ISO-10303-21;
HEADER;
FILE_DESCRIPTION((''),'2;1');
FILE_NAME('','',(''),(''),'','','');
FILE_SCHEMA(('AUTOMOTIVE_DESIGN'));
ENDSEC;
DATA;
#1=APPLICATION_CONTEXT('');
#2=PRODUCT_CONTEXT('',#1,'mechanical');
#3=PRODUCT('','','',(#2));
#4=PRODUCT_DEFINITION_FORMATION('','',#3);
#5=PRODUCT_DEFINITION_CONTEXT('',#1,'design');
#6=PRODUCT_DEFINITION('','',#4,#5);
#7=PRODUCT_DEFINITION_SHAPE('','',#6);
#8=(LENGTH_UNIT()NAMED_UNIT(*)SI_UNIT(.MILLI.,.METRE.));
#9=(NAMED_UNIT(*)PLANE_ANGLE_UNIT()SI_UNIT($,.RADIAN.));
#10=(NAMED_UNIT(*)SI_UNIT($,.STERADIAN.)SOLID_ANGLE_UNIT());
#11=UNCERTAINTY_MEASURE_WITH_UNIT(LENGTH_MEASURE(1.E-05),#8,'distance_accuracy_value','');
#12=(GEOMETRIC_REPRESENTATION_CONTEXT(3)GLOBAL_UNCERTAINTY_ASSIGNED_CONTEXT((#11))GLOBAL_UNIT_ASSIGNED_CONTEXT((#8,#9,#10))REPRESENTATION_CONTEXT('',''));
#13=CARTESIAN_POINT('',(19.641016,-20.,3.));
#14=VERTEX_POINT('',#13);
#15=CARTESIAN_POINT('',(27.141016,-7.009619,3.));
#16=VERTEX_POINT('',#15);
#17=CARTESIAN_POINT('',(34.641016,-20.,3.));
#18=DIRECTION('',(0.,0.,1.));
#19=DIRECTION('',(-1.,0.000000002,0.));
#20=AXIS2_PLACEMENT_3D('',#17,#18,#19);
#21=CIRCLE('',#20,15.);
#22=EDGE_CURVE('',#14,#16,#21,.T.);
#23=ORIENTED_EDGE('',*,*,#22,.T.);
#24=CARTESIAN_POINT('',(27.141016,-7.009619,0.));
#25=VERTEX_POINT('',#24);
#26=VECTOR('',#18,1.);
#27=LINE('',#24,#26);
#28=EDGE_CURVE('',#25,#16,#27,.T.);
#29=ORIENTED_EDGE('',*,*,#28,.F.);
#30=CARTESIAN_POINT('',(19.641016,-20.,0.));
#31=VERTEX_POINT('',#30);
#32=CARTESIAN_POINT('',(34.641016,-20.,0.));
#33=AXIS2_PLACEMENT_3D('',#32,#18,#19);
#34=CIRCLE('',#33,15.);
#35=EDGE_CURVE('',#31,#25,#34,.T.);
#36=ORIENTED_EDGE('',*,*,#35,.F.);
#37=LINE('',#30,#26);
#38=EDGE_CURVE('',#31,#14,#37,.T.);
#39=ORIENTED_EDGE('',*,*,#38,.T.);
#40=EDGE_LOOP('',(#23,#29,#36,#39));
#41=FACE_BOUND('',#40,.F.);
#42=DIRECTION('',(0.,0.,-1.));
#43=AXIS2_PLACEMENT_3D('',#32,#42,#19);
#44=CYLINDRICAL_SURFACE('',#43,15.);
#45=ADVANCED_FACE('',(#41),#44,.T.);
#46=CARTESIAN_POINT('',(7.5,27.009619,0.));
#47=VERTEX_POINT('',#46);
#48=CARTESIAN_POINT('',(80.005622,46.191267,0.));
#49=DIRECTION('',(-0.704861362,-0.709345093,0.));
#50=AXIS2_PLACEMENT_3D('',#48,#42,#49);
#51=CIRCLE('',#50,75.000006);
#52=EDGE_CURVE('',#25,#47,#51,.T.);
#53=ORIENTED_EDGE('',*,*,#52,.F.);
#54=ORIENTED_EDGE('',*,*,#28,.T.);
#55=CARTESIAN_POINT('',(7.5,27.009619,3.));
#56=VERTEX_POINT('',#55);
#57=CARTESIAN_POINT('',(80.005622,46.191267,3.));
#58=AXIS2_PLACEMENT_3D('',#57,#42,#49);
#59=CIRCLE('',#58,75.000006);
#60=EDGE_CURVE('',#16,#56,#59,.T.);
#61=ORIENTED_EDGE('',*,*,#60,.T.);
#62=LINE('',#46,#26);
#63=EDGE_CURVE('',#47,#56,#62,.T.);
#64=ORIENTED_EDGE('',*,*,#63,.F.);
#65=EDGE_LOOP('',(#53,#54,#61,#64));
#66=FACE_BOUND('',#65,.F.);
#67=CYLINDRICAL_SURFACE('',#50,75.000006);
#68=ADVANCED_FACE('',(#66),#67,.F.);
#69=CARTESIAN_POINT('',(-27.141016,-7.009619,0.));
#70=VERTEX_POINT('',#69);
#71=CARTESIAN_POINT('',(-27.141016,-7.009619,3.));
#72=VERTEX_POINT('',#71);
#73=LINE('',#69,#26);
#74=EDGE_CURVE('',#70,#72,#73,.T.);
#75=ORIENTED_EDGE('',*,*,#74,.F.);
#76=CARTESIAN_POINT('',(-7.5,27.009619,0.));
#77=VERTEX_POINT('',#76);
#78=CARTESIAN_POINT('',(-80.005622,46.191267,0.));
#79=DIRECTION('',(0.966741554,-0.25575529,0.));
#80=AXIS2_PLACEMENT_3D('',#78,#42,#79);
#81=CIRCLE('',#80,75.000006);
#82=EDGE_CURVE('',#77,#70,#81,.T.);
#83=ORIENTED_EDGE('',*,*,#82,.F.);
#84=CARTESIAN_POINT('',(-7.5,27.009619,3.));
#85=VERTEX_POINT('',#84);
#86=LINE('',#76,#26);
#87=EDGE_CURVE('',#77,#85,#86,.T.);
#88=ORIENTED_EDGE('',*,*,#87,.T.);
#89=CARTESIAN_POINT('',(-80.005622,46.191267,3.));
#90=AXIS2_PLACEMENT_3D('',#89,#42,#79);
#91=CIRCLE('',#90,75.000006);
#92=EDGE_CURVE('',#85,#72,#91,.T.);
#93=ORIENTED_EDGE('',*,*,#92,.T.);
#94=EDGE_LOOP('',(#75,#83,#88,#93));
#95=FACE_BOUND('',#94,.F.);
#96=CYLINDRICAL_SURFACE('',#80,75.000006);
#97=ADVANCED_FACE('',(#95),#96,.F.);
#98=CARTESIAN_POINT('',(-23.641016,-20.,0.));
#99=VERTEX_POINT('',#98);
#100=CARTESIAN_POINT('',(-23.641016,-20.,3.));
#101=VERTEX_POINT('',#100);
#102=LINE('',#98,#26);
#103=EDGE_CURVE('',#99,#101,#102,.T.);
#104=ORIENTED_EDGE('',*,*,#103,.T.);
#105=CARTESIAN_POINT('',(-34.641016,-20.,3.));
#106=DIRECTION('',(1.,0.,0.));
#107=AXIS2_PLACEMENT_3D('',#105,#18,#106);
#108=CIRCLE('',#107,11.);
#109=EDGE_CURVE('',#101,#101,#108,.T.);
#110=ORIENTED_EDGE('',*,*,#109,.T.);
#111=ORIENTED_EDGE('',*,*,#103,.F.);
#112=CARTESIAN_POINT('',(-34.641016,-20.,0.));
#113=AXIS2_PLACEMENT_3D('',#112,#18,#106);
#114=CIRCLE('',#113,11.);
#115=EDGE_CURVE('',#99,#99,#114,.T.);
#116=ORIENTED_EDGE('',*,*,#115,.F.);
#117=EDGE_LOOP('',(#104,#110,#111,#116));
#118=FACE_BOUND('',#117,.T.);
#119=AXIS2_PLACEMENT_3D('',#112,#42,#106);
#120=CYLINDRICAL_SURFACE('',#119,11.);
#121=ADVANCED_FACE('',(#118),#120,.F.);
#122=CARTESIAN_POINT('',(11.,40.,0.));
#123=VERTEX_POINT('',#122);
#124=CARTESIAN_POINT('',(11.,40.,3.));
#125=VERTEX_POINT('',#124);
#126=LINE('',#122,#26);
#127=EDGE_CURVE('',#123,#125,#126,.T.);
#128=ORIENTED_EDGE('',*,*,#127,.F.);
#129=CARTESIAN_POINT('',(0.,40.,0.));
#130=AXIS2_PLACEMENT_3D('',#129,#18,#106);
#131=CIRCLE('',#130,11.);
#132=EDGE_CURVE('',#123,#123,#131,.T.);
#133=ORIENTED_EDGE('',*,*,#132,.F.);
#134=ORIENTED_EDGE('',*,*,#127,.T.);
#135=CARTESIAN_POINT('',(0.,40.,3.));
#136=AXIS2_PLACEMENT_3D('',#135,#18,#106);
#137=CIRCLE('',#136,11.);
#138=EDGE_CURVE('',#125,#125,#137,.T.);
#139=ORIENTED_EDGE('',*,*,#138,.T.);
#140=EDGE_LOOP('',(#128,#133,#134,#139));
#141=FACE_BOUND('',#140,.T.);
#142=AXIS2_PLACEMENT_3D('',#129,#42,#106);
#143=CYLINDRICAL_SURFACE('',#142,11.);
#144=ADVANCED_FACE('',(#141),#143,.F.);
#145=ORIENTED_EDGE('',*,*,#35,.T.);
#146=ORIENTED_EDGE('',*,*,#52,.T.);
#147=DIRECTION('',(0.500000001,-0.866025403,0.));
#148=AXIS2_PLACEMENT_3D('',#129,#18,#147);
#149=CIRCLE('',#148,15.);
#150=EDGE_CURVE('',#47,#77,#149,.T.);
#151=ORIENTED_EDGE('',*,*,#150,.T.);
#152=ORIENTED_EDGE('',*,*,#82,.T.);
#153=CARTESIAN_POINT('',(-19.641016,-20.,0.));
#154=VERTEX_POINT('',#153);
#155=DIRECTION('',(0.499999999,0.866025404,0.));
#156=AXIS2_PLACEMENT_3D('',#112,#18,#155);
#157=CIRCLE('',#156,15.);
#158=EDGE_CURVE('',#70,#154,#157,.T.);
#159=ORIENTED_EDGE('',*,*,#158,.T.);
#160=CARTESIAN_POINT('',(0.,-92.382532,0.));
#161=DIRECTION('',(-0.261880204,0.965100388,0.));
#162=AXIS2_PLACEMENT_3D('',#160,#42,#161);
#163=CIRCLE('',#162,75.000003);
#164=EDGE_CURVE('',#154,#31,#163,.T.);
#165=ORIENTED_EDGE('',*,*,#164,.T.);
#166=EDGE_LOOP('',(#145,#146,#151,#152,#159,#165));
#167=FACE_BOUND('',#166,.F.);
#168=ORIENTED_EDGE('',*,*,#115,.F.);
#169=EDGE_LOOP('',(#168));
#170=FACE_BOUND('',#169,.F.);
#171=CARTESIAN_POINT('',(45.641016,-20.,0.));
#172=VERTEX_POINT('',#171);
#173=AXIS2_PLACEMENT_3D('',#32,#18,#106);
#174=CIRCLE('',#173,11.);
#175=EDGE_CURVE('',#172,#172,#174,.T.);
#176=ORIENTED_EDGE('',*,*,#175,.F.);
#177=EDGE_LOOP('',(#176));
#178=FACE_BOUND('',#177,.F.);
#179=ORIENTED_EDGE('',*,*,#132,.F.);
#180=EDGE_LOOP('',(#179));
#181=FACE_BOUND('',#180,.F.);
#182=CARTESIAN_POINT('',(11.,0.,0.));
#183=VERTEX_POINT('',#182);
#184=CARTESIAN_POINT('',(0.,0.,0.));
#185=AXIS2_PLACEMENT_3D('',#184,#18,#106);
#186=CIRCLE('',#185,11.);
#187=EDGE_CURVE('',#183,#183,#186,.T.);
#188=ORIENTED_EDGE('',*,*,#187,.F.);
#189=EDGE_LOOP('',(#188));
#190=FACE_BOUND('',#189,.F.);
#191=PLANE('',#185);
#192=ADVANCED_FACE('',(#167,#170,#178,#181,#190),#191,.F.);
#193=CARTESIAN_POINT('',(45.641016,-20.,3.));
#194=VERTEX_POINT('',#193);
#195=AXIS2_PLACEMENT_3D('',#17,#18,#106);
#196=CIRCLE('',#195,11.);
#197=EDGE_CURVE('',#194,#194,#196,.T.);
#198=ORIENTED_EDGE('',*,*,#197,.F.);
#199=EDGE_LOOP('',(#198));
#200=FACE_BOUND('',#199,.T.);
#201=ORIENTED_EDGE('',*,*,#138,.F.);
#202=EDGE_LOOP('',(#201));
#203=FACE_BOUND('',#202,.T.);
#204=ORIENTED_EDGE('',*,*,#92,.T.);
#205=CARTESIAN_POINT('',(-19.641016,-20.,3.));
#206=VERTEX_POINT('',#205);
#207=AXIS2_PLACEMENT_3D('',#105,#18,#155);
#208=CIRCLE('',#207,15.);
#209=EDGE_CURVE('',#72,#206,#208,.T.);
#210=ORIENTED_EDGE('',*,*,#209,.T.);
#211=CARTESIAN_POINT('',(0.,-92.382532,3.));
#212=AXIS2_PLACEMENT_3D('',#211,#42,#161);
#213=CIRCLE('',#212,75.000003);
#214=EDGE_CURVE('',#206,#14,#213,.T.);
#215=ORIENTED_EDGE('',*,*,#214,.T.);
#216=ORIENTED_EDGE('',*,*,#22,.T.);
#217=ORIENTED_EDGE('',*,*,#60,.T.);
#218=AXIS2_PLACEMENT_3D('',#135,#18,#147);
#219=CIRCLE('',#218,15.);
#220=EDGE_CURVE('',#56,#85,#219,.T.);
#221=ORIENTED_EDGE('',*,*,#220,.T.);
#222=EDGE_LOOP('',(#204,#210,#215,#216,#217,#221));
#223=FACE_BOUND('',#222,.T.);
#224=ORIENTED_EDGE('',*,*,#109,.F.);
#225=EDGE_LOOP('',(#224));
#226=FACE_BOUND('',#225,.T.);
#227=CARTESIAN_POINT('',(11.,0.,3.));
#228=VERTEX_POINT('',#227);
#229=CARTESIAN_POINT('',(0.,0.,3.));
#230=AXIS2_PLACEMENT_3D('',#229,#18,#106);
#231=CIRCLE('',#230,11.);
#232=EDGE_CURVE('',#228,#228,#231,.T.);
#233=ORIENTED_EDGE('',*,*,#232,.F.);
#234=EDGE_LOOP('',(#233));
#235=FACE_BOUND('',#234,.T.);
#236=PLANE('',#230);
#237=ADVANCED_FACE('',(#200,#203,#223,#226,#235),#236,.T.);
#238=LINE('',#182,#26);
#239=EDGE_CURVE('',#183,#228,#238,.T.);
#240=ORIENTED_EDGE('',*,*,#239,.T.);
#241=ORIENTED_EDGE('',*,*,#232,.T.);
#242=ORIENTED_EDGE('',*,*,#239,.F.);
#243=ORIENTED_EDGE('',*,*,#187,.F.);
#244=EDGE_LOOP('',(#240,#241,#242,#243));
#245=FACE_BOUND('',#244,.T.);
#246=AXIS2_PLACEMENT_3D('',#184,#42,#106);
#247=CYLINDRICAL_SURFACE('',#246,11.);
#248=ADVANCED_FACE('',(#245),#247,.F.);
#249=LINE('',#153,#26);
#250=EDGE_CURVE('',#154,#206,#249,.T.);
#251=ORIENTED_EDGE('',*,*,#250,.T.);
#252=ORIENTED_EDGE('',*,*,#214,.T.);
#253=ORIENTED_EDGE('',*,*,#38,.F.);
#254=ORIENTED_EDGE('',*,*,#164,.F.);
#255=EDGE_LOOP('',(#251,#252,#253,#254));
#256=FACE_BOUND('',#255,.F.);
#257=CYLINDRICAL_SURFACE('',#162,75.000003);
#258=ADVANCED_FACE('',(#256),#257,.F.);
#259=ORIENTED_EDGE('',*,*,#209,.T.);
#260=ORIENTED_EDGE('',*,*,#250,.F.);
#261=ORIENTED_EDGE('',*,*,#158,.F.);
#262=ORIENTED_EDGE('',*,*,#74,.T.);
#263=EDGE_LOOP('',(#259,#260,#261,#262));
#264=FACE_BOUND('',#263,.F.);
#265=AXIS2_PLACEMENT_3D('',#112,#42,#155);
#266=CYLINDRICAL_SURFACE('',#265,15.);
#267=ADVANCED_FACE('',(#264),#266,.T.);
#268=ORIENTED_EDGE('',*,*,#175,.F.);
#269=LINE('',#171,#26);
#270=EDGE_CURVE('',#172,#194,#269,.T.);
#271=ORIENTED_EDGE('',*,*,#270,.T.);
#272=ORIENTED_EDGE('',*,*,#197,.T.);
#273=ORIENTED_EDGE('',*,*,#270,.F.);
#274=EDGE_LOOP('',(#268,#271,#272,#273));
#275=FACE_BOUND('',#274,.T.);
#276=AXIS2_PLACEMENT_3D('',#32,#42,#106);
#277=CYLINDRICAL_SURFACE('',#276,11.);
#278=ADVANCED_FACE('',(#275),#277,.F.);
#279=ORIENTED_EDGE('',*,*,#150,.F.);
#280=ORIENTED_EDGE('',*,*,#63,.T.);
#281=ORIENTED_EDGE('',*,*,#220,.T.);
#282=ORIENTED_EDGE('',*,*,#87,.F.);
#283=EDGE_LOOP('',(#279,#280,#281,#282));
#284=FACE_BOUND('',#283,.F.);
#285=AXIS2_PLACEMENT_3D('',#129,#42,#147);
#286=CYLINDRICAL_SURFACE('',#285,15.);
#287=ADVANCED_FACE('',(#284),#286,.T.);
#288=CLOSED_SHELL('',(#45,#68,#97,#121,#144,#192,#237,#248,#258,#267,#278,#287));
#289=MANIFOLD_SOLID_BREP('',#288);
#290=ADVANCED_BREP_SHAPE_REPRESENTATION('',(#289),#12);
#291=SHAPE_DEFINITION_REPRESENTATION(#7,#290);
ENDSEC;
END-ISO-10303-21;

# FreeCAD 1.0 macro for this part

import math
import FreeCAD as App
import Part
import Sketcher
from FreeCAD import Vector
Q = App.Units.Quantity

doc = App.newDocument("Part")
body = doc.addObject("PartDesign::Body", "Body")

sketch1 = body.newObject("Sketcher::SketchObject", "Sketch")
sketch1.AttachmentSupport = (doc.getObject("XY_Plane"), [""])
sketch1.MapMode = "FlatFace"
sketch1.addGeometry(Part.ArcOfCircle(Part.Circle(Vector(80, 46, 0), Vector(0, 0, 1), 75), math.radians(-165), math.radians(-135)), False)
sketch1.addGeometry(Part.ArcOfCircle(Part.Circle(Vector(0, 40, 0), Vector(0, 0, 1), 15), math.radians(-60), math.radians(240)), False)
sketch1.addGeometry(Part.ArcOfCircle(Part.Circle(Vector(-80, 46, 0), Vector(0, 0, 1), 75), math.radians(-45), math.radians(-15)), False)
sketch1.addGeometry(Part.ArcOfCircle(Part.Circle(Vector(-35, -20, 0), Vector(0, 0, 1), 15), math.radians(60), math.radians(360)), False)
sketch1.addGeometry(Part.ArcOfCircle(Part.Circle(Vector(0, -92, 0), Vector(0, 0, 1), 75), math.radians(75), math.radians(105)), False)
sketch1.addGeometry(Part.ArcOfCircle(Part.Circle(Vector(35, -20, 0), Vector(0, 0, 1), 15), math.radians(180), math.radians(480)), False)
sketch1.addGeometry(Part.Circle(Vector(-35, -20, 0), Vector(0, 0, 1), 11), False)
sketch1.addGeometry(Part.Circle(Vector(35, -20, 0), Vector(0, 0, 1), 11), False)
sketch1.addGeometry(Part.Circle(Vector(0, 0, 0), Vector(0, 0, 1), 11), False)
sketch1.addGeometry(Part.Circle(Vector(0, 40, 0), Vector(0, 0, 1), 11), False)
sketch1.addConstraint(Sketcher.Constraint("Coincident", 0, 1, 1, 1))
sketch1.addConstraint(Sketcher.Constraint("Coincident", 1, 2, 2, 2))
sketch1.addConstraint(Sketcher.Constraint("Coincident", 2, 1, 3, 1))
sketch1.addConstraint(Sketcher.Constraint("Coincident", 3, 2, 4, 2))
sketch1.addConstraint(Sketcher.Constraint("Coincident", 4, 1, 5, 1))
sketch1.addConstraint(Sketcher.Constraint("Coincident", 5, 2, 0, 2))
sketch1.addConstraint(Sketcher.Constraint("Coincident", 8, 3, -1, 1))
sketch1.addConstraint(Sketcher.Constraint("Coincident", 6, 3, 3, 3))
sketch1.addConstraint(Sketcher.Constraint("Coincident", 7, 3, 5, 3))
sketch1.addConstraint(Sketcher.Constraint("Coincident", 9, 3, 1, 3))
sketch1.addConstraint(Sketcher.Constraint("Equal", 0, 2))
sketch1.addConstraint(Sketcher.Constraint("Equal", 1, 3))
sketch1.addConstraint(Sketcher.Constraint("Equal", 3, 5))
sketch1.addConstraint(Sketcher.Constraint("Equal", 6, 7))
sketch1.addConstraint(Sketcher.Constraint("Equal", 7, 8))
sketch1.addConstraint(Sketcher.Constraint("Equal", 8, 9))
sketch1.addConstraint(Sketcher.Constraint("Symmetric", 0, 3, 2, 3, -2))
sketch1.addConstraint(Sketcher.Constraint("Symmetric", 3, 3, 5, 3, -2))
sketch1.addConstraint(Sketcher.Constraint("PointOnObject", 1, 3, -2))
sketch1.addConstraint(Sketcher.Constraint("PointOnObject", 4, 3, -2))
sketch1.addConstraint(Sketcher.Constraint("Horizontal", 7, 3, 3, 2))
sketch1.addConstraint(Sketcher.Constraint("Diameter", 6, Q("22 mm")))
sketch1.addConstraint(Sketcher.Constraint("Radius", 1, Q("15 mm")))
sketch1.addConstraint(Sketcher.Constraint("DistanceY", -1, 1, 1, 3, Q("40 mm")))
sketch1.addConstraint(Sketcher.Constraint("DistanceY", 3, 3, -1, 1, Q("20 mm")))
sketch1.addConstraint(Sketcher.Constraint("DistanceX", 1, 2, 0, 1, Q("15 mm")))
sketch1.addConstraint(Sketcher.Constraint("DistanceX", 6, 3, 2, 1, Q("7.5 mm")))
sketch1.addConstraint(Sketcher.Constraint("Radius", 0, Q("75.000006 mm")))
sketch1.addConstraint(Sketcher.Constraint("Radius", 4, Q("75.000003 mm")))
sketch1.addConstraint(Sketcher.Constraint("DistanceY", 4, 3, 0, 3, Q("138.573799 mm")))
pad1 = body.newObject("PartDesign::Pad", "Pad")
pad1.Profile = sketch1
pad1.Length = 3

doc.recompute()
